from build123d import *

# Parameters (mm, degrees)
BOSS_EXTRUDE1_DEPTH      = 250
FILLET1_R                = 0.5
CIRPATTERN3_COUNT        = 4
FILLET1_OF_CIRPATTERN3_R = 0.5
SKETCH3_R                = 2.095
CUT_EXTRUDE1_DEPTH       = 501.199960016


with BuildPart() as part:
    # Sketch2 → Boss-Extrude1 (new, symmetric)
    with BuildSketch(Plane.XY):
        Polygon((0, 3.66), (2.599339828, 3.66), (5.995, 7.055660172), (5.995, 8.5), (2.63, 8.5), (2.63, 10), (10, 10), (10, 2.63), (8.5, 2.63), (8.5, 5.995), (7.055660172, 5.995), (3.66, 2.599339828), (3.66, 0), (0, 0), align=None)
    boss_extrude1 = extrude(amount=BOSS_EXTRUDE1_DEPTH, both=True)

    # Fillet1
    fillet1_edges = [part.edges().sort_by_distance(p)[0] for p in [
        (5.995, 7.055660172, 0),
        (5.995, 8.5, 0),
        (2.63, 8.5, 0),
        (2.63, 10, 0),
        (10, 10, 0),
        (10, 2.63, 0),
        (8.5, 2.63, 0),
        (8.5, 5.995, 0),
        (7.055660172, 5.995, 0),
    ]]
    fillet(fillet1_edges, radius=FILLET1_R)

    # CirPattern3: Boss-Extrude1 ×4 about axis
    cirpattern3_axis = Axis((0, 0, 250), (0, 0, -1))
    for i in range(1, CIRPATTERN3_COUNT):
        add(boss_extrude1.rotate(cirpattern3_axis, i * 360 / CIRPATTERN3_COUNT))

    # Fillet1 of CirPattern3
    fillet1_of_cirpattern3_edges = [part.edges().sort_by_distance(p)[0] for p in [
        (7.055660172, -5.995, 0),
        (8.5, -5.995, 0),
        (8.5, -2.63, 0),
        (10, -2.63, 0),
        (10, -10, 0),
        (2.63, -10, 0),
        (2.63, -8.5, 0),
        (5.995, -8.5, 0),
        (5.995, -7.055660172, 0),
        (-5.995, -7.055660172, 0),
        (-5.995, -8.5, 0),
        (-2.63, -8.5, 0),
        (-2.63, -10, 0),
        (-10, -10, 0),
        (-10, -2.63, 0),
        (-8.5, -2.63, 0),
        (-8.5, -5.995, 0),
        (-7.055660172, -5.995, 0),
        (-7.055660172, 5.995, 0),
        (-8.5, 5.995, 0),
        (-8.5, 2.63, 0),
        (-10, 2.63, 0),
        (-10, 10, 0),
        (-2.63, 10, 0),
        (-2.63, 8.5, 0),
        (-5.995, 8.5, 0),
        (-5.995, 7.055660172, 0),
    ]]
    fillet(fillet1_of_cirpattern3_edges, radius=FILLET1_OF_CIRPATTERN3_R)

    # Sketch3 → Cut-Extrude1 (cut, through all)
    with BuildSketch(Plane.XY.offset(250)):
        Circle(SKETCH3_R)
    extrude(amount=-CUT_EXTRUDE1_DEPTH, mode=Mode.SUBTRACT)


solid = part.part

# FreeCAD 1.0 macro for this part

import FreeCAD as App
import Part
import Sketcher
from FreeCAD import Vector
Q = App.Units.Quantity


def edges_at(feature, points):
    """Names of the edges that pass closest to the given points."""
    edges = feature.Shape.Edges
    near = lambda p: min(range(len(edges)), key=lambda i: edges[i].distToShape(Part.Vertex(*p))[0])
    return sorted({f"Edge{near(p) + 1}" for p in points})


def add_polygon(sketch, points):
    """Adds a closed chain of lines whose ends are joined by coincident constraints."""
    first, n = sketch.GeometryCount, len(points)
    for a, b in zip(points, points[1:] + points[:1]):
        sketch.addGeometry(Part.LineSegment(App.Vector(*a, 0), App.Vector(*b, 0)), False)
    for i in range(n):
        sketch.addConstraint(Sketcher.Constraint("Coincident", first + i, 2, first + (i + 1) % n, 1))

doc = App.newDocument("Part")
params = doc.addObject("Spreadsheet::Sheet", "Params")
for row, (alias, value) in enumerate([
    ("sketch1_width", "1.5 mm"),
    ("sketch1_width2", "3.66 mm"),
    ("sketch1_width3", "7.37 mm"),
    ("pad1_length", "500 mm"),
    ("fillet_radius", "0.5 mm"),
    ("fillet2_radius", "0.5 mm"),
    ("sketch2_diameter", "4.19 mm"),
], start=1):
    params.set(f"A{row}", alias)
    params.set(f"B{row}", "=" + value)
    params.setAlias(f"B{row}", alias)

body = doc.addObject("PartDesign::Body", "Body")

# Sketch on XY plane
sketch1 = body.newObject("Sketcher::SketchObject", "Sketch")
sketch1.AttachmentSupport = (doc.getObject("XY_Plane"), [""])
sketch1.MapMode = "FlatFace"
add_polygon(sketch1, [(2.59934, 3.66), (0, 3.66), (0, 0), (3.66, 0), (3.66, 2.59934), (7.05566, 5.995), (8.5, 5.995), (8.5, 2.63), (10, 2.63), (10, 10), (2.63, 10), (2.63, 8.5), (5.995, 8.5), (5.995, 7.05566)])  # lines 0-13
sketch1.addConstraint(Sketcher.Constraint("Horizontal", 0))
sketch1.addConstraint(Sketcher.Constraint("Vertical", 1))
sketch1.addConstraint(Sketcher.Constraint("Horizontal", 2))
sketch1.addConstraint(Sketcher.Constraint("Vertical", 3))
sketch1.addConstraint(Sketcher.Constraint("Horizontal", 5))
sketch1.addConstraint(Sketcher.Constraint("Vertical", 6))
sketch1.addConstraint(Sketcher.Constraint("Horizontal", 7))
sketch1.addConstraint(Sketcher.Constraint("Vertical", 8))
sketch1.addConstraint(Sketcher.Constraint("Horizontal", 9))
sketch1.addConstraint(Sketcher.Constraint("Vertical", 10))
sketch1.addConstraint(Sketcher.Constraint("Horizontal", 11))
sketch1.addConstraint(Sketcher.Constraint("Vertical", 12))
sketch1.addConstraint(Sketcher.Constraint("Coincident", 1, 2, -1, 1))
sketch1.addConstraint(Sketcher.Constraint("Parallel", 4, 13))
sketch1.addConstraint(Sketcher.Constraint("Equal", 2, 1))
sketch1.addConstraint(Sketcher.Constraint("Equal", 0, 3))
sketch1.addConstraint(Sketcher.Constraint("Equal", 11, 6))
sketch1.addConstraint(Sketcher.Constraint("Equal", 9, 8))
sketch1.addConstraint(Sketcher.Constraint("Equal", 7, 10))
sketch1.addConstraint(Sketcher.Constraint("Equal", 5, 12))
sketch1.addConstraint(Sketcher.Constraint("Angle", 4, Q("45 deg")))
sketch1.addConstraint(Sketcher.Constraint("DistanceX", 7, 1, 7, 2, Q("1.5 mm")))
sketch1.addConstraint(Sketcher.Constraint("DistanceX", -1, 1, 7, 2, Q("10 mm")))
sketch1.addConstraint(Sketcher.Constraint("DistanceX", 2, 1, 2, 2, Q("3.66 mm")))
sketch1.addConstraint(Sketcher.Constraint("DistanceX", 9, 2, 9, 1, Q("7.37 mm")))
sketch1.addConstraint(Sketcher.Constraint("DistanceX", 11, 1, 11, 2, Q("3.365 mm")))
sketch1.addConstraint(Sketcher.Constraint("DistanceX", 0, 2, 0, 1, Q("2.59934 mm")))
sketch1.setExpression("Constraints[35]", "Params.sketch1_width")
sketch1.setExpression("Constraints[37]", "Params.sketch1_width2")
sketch1.setExpression("Constraints[38]", "Params.sketch1_width3")
pad1 = body.newObject("PartDesign::Pad", "Pad")
pad1.Profile = sketch1
pad1.setExpression("Length", "Params.pad1_length")
pad1.Midplane = True
doc.recompute()

fillet = body.newObject("PartDesign::Fillet", "Fillet")
fillet.Base = (pad1, edges_at(pad1, [
    (5.995, 7.056, 0),
    (5.995, 8.5, 0),
    (2.63, 8.5, 0),
    (2.63, 10, 0),
    (10, 10, 0),
    (10, 2.63, 0),
    (8.5, 2.63, 0),
    (8.5, 5.995, 0),
    (7.056, 5.995, 0),
]))
fillet.setExpression("Radius", "Params.fillet_radius")
doc.recompute()

polarpattern = body.newObject("PartDesign::PolarPattern", "PolarPattern")
polarpattern.Originals = [pad1]
polarpattern.Axis = (doc.getObject("Z_Axis"), [""])
polarpattern.Angle = 360
polarpattern.Occurrences = 4
body.Tip = polarpattern
doc.recompute()

fillet2 = body.newObject("PartDesign::Fillet", "Fillet001")
fillet2.Base = (polarpattern, edges_at(polarpattern, [
    (7.056, -5.995, 0),
    (8.5, -5.995, 0),
    (8.5, -2.63, 0),
    (10, -2.63, 0),
    (10, -10, 0),
    (2.63, -10, 0),
    (2.63, -8.5, 0),
    (5.995, -8.5, 0),
    (5.995, -7.056, 0),
    (-5.995, -7.056, 0),
    (-5.995, -8.5, 0),
    (-2.63, -8.5, 0),
    (-2.63, -10, 0),
    (-10, -10, 0),
    (-10, -2.63, 0),
    (-8.5, -2.63, 0),
    (-8.5, -5.995, 0),
    (-7.056, -5.995, 0),
    (-7.056, 5.995, 0),
    (-8.5, 5.995, 0),
    (-8.5, 2.63, 0),
    (-10, 2.63, 0),
    (-10, 10, 0),
    (-2.63, 10, 0),
    (-2.63, 8.5, 0),
    (-5.995, 8.5, 0),
    (-5.995, 7.056, 0),
]))
fillet2.setExpression("Radius", "Params.fillet2_radius")

# Sketch on XY plane
sketch2 = body.newObject("Sketcher::SketchObject", "Sketch001")
sketch2.AttachmentSupport = (doc.getObject("XY_Plane"), [""])
sketch2.MapMode = "FlatFace"
sketch2.AttachmentOffset = App.Placement(Vector(0, 0, 250), App.Rotation())
sketch2.addGeometry(Part.Circle(Vector(0, 0, 0), Vector(0, 0, 1), 2.095), False)
sketch2.addConstraint(Sketcher.Constraint("Coincident", 0, 3, -1, 1))
sketch2.addConstraint(Sketcher.Constraint("Diameter", 0, Q("4.19 mm")))
sketch2.setExpression("Constraints[1]", "Params.sketch2_diameter")
pocket1 = body.newObject("PartDesign::Pocket", "Pocket")
pocket1.Profile = sketch2
pocket1.Type = "ThroughAll"

doc.recompute()
